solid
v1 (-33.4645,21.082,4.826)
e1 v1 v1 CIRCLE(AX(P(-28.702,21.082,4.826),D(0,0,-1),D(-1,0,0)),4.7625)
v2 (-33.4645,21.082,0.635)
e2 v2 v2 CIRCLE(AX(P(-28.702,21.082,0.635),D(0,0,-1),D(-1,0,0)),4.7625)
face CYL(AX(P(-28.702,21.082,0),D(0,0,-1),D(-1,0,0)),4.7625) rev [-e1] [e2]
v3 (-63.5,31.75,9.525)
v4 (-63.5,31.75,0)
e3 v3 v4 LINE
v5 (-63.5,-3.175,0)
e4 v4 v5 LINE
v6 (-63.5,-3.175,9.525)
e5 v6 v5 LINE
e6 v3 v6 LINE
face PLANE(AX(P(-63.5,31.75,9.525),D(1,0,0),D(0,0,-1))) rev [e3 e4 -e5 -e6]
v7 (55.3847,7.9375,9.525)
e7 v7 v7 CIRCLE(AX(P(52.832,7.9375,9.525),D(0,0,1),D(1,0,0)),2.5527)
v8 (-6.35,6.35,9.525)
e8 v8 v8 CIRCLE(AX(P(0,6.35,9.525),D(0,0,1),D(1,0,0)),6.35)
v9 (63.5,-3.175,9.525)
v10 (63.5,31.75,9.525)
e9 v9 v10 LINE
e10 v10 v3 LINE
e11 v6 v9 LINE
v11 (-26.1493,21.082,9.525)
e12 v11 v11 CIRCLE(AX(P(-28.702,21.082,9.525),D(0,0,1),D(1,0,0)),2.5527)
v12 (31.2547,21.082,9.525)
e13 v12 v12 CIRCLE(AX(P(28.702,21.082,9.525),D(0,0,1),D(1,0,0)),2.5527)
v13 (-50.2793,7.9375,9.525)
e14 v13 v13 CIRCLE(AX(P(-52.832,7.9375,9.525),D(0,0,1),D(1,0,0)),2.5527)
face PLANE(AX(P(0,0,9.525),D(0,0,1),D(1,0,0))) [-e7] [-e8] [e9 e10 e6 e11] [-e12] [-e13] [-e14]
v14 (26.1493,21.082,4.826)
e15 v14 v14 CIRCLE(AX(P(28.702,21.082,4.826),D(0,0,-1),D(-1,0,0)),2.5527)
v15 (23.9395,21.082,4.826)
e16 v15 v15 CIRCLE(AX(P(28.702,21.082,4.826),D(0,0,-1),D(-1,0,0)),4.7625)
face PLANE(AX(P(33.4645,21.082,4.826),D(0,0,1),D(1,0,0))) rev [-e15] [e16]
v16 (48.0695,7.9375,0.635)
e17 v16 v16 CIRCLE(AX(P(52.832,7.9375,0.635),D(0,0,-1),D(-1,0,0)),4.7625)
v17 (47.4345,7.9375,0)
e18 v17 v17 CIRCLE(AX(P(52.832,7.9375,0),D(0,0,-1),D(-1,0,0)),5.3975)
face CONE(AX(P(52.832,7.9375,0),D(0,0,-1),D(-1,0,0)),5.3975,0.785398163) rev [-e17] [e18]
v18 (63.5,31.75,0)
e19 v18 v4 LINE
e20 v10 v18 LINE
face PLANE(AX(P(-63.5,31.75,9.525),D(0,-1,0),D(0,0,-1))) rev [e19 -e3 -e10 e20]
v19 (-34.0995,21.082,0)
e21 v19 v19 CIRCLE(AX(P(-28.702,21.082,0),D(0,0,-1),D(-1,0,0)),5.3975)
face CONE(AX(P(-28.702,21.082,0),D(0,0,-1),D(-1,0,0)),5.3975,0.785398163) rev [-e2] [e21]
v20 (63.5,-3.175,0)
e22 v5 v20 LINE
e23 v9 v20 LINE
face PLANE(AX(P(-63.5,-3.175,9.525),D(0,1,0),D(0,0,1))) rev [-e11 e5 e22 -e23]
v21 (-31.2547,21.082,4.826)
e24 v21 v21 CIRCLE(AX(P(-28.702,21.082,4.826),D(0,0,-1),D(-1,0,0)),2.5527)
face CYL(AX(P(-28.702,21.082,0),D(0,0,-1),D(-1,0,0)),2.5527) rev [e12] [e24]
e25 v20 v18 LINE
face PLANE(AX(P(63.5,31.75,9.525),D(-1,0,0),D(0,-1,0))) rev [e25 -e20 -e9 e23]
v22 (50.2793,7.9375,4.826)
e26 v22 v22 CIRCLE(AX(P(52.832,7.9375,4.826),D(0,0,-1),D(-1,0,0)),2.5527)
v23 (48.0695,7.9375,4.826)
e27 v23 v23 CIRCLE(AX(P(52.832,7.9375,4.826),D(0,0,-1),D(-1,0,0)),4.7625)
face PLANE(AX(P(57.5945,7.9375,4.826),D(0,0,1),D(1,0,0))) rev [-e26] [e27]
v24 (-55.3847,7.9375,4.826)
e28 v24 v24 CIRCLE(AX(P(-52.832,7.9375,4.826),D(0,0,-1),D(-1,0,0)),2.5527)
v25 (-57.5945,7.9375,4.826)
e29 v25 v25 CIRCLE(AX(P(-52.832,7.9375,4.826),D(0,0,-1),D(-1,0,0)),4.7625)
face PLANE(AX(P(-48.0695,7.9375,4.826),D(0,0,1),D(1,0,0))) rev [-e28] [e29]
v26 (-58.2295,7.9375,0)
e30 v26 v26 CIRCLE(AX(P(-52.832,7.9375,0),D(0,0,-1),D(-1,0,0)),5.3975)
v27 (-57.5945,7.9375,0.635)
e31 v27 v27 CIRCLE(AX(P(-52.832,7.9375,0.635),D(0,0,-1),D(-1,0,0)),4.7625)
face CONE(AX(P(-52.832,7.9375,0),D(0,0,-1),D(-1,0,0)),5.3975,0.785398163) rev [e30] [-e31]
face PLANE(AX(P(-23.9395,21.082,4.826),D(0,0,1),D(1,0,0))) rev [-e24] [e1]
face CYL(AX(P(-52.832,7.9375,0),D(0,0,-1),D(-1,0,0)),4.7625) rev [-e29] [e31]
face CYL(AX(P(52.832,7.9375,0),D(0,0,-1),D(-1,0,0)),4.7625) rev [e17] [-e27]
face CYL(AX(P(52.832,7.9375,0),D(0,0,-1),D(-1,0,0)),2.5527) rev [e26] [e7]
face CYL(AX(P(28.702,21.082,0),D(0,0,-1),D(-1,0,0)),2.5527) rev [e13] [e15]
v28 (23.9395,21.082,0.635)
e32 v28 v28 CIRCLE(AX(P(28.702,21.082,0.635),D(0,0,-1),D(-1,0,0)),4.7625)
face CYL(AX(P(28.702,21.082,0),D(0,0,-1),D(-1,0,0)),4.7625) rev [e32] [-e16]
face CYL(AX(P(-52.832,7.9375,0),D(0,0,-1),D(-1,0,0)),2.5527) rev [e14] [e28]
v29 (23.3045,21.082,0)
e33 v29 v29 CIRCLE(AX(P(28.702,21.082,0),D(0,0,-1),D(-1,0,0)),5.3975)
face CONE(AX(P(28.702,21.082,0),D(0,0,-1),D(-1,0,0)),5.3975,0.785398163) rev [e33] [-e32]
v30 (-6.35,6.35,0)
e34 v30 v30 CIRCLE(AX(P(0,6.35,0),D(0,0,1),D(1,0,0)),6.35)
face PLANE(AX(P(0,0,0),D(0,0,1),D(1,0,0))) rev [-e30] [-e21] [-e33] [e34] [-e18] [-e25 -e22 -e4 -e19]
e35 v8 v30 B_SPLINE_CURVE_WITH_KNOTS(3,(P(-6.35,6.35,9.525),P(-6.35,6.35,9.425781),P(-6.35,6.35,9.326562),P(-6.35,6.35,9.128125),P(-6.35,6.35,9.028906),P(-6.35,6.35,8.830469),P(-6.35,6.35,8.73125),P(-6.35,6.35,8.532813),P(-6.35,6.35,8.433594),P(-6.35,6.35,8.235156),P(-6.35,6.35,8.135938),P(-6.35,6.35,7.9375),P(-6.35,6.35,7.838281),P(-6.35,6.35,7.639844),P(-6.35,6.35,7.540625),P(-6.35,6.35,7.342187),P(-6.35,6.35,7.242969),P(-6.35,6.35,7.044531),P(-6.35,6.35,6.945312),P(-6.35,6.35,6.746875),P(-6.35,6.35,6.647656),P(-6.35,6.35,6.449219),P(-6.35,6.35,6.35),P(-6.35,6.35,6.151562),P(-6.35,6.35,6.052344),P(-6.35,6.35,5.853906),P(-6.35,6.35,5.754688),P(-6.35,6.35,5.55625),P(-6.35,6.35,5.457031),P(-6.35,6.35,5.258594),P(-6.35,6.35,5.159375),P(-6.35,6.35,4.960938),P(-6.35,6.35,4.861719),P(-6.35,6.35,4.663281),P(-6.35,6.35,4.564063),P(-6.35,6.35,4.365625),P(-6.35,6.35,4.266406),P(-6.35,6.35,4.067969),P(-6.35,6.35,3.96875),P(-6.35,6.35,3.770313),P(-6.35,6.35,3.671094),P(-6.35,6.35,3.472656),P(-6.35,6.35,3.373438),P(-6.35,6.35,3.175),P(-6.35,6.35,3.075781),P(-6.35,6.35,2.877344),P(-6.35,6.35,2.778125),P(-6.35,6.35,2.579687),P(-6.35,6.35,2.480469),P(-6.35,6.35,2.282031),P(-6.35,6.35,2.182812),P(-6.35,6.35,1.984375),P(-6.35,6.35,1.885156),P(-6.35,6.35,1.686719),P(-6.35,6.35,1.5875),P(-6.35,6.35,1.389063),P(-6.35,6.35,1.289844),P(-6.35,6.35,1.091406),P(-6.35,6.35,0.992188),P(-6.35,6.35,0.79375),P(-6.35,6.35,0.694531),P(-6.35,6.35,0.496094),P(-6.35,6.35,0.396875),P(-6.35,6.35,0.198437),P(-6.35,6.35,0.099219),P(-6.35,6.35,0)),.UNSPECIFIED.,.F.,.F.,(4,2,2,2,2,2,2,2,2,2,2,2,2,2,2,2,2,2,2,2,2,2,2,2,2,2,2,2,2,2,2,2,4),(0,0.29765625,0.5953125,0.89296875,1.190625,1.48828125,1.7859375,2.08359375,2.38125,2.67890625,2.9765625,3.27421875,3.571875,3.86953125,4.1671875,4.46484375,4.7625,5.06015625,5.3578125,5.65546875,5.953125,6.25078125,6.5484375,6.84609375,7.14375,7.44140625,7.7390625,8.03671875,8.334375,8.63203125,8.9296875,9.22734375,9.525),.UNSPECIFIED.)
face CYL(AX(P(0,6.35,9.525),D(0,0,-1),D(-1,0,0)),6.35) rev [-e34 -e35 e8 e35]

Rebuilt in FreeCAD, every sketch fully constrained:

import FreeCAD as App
import Part
import Sketcher
Q = App.Units.Quantity


def add_polygon(sketch, points):
    """Adds a closed chain of lines whose ends are joined by coincident constraints."""
    first, n = sketch.GeometryCount, len(points)
    for a, b in zip(points, points[1:] + points[:1]):
        sketch.addGeometry(Part.LineSegment(App.Vector(*a, 0), App.Vector(*b, 0)), False)
    for i in range(n):
        sketch.addConstraint(Sketcher.Constraint("Coincident", first + i, 2, first + (i + 1) % n, 1))

doc = App.newDocument("Part")
params = doc.addObject("Spreadsheet::Sheet", "Params")
for row, (alias, value) in enumerate([
    ("sketch1_diameter", "0.5 in"),
    ("sketch1_width", "5 in"),
    ("sketch1_height", "1.375 in"),
    ("pad1_length", "0.375 in"),
    ("sketch2_width", "0.087 in"),
    ("sketch2_height", "0.375 in"),
    ("sketch2_height2", "0.165 in"),
    ("sketch2_height3", "0.185 in"),
    ("groove_angle", "360 deg"),
    ("linearpattern_pitch", "27.477896 mm"),
    ("linearpattern2_pitch", "2.26 in"),
    ("linearpattern3_pitch", "82.586749 mm"),
], start=1):
    params.set(f"A{row}", alias)
    params.set(f"B{row}", "=" + value)
    params.setAlias(f"B{row}", alias)

body = doc.addObject("PartDesign::Body", "Body")

# Sketch on XY plane
sketch1 = body.newObject("Sketcher::SketchObject", "Sketch")
sketch1.AttachmentSupport = (doc.getObject("XY_Plane"), [""])
sketch1.MapMode = "FlatFace"
add_polygon(sketch1, [(-64, 32), (-64, -3), (64, -3), (64, 32)])  # lines 0-3
sketch1.addGeometry(Part.Circle(App.Vector(0, 6, 0), App.Vector(0, 0, 1), 6), False)  # 4
sketch1.addConstraint([
    Sketcher.Constraint("Vertical", 0),
    Sketcher.Constraint("Horizontal", 1),
    Sketcher.Constraint("Vertical", 2),
    Sketcher.Constraint("Horizontal", 3),
    Sketcher.Constraint("PointOnObject", 4, 3, -2),
    Sketcher.Constraint("Diameter", 4, Q("0.5 in")),
    Sketcher.Constraint("DistanceX", 1, 1, 1, 2, Q("5 in")),
    Sketcher.Constraint("DistanceY", 4, 3, 2, 2, Q("1 in")),
    Sketcher.Constraint("DistanceX", 0, 2, -1, 1, Q("2.5 in")),
    Sketcher.Constraint("DistanceY", 0, 2, 0, 1, Q("1.375 in")),
    Sketcher.Constraint("DistanceY", -1, 1, 4, 3, Q("0.25 in")),
])
sketch1.setExpression("Constraints[9]", "Params.sketch1_diameter")
sketch1.setExpression("Constraints[10]", "Params.sketch1_width")
sketch1.setExpression("Constraints[13]", "Params.sketch1_height")
pad1 = body.newObject("PartDesign::Pad", "Pad")
pad1.Profile = sketch1
pad1.setExpression("Length", "Params.pad1_length")

# Sketch on YZ plane
sketch2 = body.newObject("Sketcher::SketchObject", "Sketch001")
sketch2.AttachmentSupport = (doc.getObject("YZ_Plane"), [""])
sketch2.MapMode = "FlatFace"
sketch2.AttachmentOffset = App.Placement(App.Vector(0, 0, 1.13 * 25.4), App.Rotation())
add_polygon(sketch2, [(21.1, 9.5), (21.1, 0), (26.5, 0), (25.8, 0.6), (25.8, 4.8), (23.6, 4.8), (23.6, 9.5)])  # lines 0-6
sketch2.addGeometry(Part.LineSegment(App.Vector(21.1, 0, 0), App.Vector(21.1, 9.5, 0)), True)  # axis
sketch2.addConstraint([
    Sketcher.Constraint("Vertical", 0),
    Sketcher.Constraint("Horizontal", 1),
    Sketcher.Constraint("Vertical", 3),
    Sketcher.Constraint("Horizontal", 4),
    Sketcher.Constraint("Vertical", 5),
    Sketcher.Constraint("Horizontal", 6),
    Sketcher.Constraint("Vertical", 7),
    Sketcher.Constraint("Coincident", 7, 1, 0, 2),
    Sketcher.Constraint("PointOnObject", 0, 2, -1),
    Sketcher.Constraint("Horizontal", 5, 2, 7, 2),
    Sketcher.Constraint("Angle", 2, Q("135 deg")),
    Sketcher.Constraint("DistanceX", 4, 2, 4, 1, Q("0.087 in")),
    Sketcher.Constraint("DistanceY", 0, 2, 0, 1, Q("0.375 in")),
    Sketcher.Constraint("DistanceY", 3, 1, 3, 2, Q("0.165 in")),
    Sketcher.Constraint("DistanceY", 5, 1, 5, 2, Q("0.185 in")),
    Sketcher.Constraint("DistanceX", -1, 1, 0, 2, Q("0.83 in")),
    Sketcher.Constraint("DistanceX", 1, 1, 1, 2, Q("0.2125 in")),
])
sketch2.setExpression("Constraints[18]", "Params.sketch2_width")
sketch2.setExpression("Constraints[19]", "Params.sketch2_height")
sketch2.setExpression("Constraints[20]", "Params.sketch2_height2")
sketch2.setExpression("Constraints[21]", "Params.sketch2_height3")
groove = body.newObject("PartDesign::Groove", "Groove")
groove.Profile = sketch2
groove.ReferenceAxis = (sketch2, ["Axis0"])
groove.setExpression("Angle", "Params.groove_angle")
doc.recompute()

datumline = body.newObject("PartDesign::Line", "DatumLine")
datumline.Placement = App.Placement(App.Vector(0, 0, 0), App.Rotation(App.Vector(0, 0, 1), App.Vector(0.878160388, -0.478366317, 0)))
linearpattern = body.newObject("PartDesign::LinearPattern", "LinearPattern")
linearpattern.Originals = [groove]
linearpattern.Direction = (datumline, [""])
linearpattern.Mode = "offset"
linearpattern.setExpression("Offset", "Params.linearpattern_pitch")
linearpattern.Occurrences = 2
body.Tip = linearpattern
doc.recompute()

linearpattern2 = body.newObject("PartDesign::LinearPattern", "LinearPattern001")
linearpattern2.Originals = [groove]
linearpattern2.Direction = (doc.getObject("X_Axis"), [""])
linearpattern2.Mode = "offset"
linearpattern2.setExpression("Offset", "Params.linearpattern2_pitch")
linearpattern2.Occurrences = 2
linearpattern2.Reversed = True
body.Tip = linearpattern2
doc.recompute()

datumline2 = body.newObject("PartDesign::Line", "DatumLine001")
datumline2.Placement = App.Placement(App.Vector(0, 0, 0), App.Rotation(App.Vector(0, 0, 1), App.Vector(-0.987252815, -0.159159916, 0)))
linearpattern3 = body.newObject("PartDesign::LinearPattern", "LinearPattern002")
linearpattern3.Originals = [groove]
linearpattern3.Direction = (datumline2, [""])
linearpattern3.Mode = "offset"
linearpattern3.setExpression("Offset", "Params.linearpattern3_pitch")
linearpattern3.Occurrences = 2
body.Tip = linearpattern3

doc.recompute()
